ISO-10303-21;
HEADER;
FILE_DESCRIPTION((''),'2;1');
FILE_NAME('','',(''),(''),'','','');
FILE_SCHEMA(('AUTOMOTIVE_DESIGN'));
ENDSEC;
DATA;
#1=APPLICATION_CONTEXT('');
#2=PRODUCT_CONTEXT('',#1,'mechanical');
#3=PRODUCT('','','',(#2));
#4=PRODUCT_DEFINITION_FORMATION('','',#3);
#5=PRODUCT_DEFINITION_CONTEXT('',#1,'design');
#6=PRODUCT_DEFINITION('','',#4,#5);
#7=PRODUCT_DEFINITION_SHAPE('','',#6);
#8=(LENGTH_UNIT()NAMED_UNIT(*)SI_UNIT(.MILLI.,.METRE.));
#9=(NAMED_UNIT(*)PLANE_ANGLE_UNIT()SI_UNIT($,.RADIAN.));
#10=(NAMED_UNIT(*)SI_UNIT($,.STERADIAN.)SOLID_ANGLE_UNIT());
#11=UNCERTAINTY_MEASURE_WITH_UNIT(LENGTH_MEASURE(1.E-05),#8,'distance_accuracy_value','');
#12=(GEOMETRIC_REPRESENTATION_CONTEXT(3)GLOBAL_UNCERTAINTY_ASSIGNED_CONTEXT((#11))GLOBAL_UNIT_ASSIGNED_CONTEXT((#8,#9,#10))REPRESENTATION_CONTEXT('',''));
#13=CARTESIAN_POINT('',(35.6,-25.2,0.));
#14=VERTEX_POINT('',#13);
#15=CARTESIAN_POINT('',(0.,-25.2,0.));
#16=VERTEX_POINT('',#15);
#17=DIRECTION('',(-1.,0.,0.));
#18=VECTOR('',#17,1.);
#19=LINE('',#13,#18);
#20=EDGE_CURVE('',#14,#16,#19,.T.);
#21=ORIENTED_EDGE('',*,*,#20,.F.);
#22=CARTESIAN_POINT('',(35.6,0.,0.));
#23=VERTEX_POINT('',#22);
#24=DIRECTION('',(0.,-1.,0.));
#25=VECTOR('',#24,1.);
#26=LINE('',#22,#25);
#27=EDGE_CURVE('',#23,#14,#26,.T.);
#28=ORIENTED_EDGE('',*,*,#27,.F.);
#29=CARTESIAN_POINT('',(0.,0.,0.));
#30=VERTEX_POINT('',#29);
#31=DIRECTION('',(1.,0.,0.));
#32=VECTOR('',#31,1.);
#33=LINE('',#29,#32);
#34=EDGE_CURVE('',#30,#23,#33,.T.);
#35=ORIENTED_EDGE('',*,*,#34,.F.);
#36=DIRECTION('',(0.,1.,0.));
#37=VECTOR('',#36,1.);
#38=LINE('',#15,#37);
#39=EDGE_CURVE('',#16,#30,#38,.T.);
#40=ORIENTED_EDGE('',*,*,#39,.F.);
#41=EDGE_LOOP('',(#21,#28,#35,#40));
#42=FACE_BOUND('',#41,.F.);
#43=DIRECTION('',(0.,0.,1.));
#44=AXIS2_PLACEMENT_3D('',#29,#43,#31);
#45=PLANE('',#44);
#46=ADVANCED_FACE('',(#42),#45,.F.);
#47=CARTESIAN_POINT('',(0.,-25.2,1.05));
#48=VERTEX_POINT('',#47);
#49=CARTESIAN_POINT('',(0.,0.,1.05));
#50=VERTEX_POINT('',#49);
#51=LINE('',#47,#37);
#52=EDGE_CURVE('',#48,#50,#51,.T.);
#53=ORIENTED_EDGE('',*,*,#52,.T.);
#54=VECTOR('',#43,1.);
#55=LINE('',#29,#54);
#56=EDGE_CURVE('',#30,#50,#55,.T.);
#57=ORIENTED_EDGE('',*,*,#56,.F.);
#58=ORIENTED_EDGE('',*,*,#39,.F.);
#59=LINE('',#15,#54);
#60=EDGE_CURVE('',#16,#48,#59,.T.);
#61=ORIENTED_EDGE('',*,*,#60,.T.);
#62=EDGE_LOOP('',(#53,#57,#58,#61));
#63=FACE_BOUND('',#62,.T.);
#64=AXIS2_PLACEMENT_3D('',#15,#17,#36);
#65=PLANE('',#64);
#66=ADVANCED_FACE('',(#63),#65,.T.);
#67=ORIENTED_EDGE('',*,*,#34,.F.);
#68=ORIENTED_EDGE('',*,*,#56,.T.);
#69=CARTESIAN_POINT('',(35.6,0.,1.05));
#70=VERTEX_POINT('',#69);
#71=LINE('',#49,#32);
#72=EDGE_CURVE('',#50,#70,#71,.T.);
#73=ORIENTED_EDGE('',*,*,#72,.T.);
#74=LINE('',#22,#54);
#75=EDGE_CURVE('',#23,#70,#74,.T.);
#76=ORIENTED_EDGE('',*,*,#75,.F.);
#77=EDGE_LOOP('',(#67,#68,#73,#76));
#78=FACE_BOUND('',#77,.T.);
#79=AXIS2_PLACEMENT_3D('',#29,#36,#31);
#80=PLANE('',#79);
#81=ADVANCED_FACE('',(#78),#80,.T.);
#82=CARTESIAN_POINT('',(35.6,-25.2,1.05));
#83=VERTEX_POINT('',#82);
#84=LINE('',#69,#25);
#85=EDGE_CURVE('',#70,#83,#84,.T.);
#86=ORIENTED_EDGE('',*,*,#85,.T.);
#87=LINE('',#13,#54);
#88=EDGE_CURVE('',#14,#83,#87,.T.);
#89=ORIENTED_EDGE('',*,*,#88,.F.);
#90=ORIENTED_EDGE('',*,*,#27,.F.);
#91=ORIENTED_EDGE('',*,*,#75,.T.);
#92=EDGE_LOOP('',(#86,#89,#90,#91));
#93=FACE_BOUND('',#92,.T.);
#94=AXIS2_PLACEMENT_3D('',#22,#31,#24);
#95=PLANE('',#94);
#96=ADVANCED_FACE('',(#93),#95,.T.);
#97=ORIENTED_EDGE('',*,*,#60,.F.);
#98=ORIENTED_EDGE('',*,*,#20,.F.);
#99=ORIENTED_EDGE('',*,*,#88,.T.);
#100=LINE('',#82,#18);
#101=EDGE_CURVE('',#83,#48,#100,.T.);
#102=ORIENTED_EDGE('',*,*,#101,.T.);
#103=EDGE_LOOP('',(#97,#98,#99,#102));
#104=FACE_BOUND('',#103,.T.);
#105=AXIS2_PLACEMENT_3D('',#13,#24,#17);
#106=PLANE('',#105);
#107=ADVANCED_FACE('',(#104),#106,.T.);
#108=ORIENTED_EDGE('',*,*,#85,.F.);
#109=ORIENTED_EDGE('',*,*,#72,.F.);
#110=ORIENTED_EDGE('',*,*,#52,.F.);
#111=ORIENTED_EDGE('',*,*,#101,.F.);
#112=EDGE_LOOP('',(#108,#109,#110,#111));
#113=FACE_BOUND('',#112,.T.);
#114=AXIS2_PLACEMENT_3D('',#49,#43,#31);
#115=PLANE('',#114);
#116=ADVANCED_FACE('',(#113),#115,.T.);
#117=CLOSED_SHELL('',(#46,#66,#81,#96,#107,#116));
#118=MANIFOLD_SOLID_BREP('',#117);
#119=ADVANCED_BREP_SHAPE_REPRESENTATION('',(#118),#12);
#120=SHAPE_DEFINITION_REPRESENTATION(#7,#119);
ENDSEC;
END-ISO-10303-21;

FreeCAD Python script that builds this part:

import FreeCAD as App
import Part
import Sketcher
from FreeCAD import Vector


def add_polygon(sketch, points):
    """Adds a closed chain of lines whose ends are joined by coincident constraints."""
    first, n = sketch.GeometryCount, len(points)
    for a, b in zip(points, points[1:] + points[:1]):
        sketch.addGeometry(Part.LineSegment(App.Vector(*a, 0), App.Vector(*b, 0)), False)
    for i in range(n):
        sketch.addConstraint(Sketcher.Constraint("Coincident", first + i, 2, first + (i + 1) % n, 1))

doc = App.newDocument("Part")
params = doc.addObject("Spreadsheet::Sheet", "Params")
for row, (alias, value) in enumerate([
    ("sketch1_width", "35.6 mm"),
    ("sketch1_height", "25.2 mm"),
    ("pad1_length", "1.05 mm"),
], start=1):
    params.set(f"A{row}", alias)
    params.set(f"B{row}", "=" + value)
    params.setAlias(f"B{row}", alias)

body = doc.addObject("PartDesign::Body", "Body")

# Sketch on XY plane
sketch1 = doc.addObject("Sketcher::SketchObject", "Sketch")
body.addObject(sketch1)
sketch1.AttachmentSupport = (doc.XY_Plane, [""])
sketch1.MapMode = "FlatFace"
add_polygon(sketch1, [(36, 0), (0, 0), (0, -25), (36, -25)])  # lines 0-3
sketch1.addConstraint([
    Sketcher.Constraint("Horizontal", 0),
    Sketcher.Constraint("Vertical", 1),
    Sketcher.Constraint("Horizontal", 2),
    Sketcher.Constraint("Vertical", 3),
    Sketcher.Constraint("Coincident", 0, 2, -1, 1),
    Sketcher.Constraint("DistanceX", 0, 2, 0, 1, 35.6),
    Sketcher.Constraint("DistanceY", 1, 2, 1, 1, 25.2),
])
sketch1.setExpression("Constraints[9]", "Params.sketch1_width")
sketch1.setExpression("Constraints[10]", "Params.sketch1_height")
pad1 = doc.addObject("PartDesign::Pad", "Pad")
body.addObject(pad1)
pad1.Profile = sketch1
pad1.setExpression("Length", "Params.pad1_length")

doc.recompute()
